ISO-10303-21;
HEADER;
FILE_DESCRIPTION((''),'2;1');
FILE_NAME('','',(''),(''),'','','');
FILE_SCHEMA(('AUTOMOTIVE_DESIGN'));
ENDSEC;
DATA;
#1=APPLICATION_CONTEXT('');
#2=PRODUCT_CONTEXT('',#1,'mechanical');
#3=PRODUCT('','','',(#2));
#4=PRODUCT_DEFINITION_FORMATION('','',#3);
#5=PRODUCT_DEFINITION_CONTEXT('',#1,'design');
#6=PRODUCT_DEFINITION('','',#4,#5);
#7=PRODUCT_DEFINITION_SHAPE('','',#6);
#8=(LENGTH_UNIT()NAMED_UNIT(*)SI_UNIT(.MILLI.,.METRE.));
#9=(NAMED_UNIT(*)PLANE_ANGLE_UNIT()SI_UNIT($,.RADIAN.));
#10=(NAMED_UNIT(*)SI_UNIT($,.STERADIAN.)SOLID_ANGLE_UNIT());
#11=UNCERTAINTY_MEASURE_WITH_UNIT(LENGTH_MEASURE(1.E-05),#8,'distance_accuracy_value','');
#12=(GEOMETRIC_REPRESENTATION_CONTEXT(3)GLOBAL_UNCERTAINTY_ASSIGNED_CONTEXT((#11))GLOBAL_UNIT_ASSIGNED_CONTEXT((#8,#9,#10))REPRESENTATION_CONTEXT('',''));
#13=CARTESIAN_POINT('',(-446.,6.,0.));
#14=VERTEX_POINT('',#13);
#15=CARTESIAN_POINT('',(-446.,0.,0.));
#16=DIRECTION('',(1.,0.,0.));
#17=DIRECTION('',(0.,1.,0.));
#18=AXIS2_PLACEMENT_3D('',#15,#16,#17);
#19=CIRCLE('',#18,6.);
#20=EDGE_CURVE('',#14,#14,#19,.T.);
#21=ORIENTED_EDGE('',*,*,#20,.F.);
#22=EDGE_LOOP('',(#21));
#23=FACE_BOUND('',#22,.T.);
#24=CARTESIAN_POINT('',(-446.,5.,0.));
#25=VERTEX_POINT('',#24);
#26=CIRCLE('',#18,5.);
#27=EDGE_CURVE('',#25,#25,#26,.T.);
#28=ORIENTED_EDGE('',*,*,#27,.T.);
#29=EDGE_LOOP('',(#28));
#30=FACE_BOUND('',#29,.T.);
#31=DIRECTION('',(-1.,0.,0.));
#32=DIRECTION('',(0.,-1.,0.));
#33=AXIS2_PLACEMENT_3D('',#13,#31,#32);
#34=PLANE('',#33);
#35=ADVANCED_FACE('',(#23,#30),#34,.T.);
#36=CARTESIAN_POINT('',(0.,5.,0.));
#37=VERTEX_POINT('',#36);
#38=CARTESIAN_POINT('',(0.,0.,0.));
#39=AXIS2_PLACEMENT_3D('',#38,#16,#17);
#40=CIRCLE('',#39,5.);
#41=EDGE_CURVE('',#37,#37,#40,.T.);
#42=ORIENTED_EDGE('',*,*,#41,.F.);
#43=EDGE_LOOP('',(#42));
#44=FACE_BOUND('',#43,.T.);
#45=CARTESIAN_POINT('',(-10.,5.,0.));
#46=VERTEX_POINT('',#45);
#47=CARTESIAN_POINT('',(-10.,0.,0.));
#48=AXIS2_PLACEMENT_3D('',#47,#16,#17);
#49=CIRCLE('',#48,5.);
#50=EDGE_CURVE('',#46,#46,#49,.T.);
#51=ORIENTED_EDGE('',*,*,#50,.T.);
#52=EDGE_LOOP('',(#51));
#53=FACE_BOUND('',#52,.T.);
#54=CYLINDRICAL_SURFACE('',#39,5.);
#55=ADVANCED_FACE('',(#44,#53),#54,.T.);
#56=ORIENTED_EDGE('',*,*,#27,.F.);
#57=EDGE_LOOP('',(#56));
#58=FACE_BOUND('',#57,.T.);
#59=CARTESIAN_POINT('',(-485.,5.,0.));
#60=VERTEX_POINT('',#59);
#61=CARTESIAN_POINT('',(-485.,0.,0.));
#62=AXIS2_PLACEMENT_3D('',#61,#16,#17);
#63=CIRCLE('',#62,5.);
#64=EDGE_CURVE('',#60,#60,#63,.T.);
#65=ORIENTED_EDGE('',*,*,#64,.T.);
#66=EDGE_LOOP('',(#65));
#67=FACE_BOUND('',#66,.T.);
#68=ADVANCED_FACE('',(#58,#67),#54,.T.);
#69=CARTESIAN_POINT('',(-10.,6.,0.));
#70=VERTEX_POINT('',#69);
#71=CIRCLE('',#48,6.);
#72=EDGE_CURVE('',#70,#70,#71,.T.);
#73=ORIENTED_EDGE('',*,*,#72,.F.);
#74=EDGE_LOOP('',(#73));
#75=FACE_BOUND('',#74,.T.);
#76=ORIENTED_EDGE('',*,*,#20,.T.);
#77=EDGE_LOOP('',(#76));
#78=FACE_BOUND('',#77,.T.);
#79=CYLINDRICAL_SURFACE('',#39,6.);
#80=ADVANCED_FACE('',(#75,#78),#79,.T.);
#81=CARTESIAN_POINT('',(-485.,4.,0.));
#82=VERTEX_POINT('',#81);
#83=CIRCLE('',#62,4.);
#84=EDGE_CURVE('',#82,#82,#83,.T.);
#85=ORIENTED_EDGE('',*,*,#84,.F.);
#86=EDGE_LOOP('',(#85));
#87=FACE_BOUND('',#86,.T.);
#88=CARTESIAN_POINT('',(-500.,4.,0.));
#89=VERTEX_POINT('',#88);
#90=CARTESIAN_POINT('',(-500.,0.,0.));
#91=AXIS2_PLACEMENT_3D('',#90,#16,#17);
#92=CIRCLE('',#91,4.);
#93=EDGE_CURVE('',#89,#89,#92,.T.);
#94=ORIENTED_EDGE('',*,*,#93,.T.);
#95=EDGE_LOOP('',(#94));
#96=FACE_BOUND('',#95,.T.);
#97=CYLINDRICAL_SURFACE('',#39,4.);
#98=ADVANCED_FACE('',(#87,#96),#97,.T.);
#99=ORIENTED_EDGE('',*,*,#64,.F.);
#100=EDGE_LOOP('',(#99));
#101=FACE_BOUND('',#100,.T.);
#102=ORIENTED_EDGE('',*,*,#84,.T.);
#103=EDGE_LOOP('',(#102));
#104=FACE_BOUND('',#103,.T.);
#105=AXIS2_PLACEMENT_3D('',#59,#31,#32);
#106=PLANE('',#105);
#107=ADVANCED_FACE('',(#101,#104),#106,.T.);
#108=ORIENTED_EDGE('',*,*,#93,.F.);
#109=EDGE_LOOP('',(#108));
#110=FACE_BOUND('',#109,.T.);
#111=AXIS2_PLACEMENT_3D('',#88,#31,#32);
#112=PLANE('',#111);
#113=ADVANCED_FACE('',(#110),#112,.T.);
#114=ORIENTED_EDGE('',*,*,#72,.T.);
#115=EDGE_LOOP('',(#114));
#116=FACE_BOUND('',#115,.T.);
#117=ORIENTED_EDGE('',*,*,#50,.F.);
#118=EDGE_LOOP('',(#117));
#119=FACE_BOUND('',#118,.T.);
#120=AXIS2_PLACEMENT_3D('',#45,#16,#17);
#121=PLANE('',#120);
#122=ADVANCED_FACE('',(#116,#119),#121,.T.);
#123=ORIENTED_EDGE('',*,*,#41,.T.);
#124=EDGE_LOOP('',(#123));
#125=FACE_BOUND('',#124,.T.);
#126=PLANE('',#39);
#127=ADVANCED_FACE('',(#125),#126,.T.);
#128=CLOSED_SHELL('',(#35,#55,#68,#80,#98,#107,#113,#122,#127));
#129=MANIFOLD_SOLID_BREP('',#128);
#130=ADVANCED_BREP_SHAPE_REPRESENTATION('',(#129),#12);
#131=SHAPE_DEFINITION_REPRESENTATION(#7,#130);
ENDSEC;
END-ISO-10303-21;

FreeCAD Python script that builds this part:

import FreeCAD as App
import Part
import Sketcher


def add_polygon(sketch, points):
    """Adds a closed chain of lines whose ends are joined by coincident constraints."""
    first, n = sketch.GeometryCount, len(points)
    for a, b in zip(points, points[1:] + points[:1]):
        sketch.addGeometry(Part.LineSegment(App.Vector(*a, 0), App.Vector(*b, 0)), False)
    for i in range(n):
        sketch.addConstraint(Sketcher.Constraint("Coincident", first + i, 2, first + (i + 1) % n, 1))

doc = App.newDocument("Part")
body = doc.addObject("PartDesign::Body", "Body")

# Sketch on XY plane
sketch1 = body.newObject("Sketcher::SketchObject", "Sketch")
sketch1.AttachmentSupport = (doc.getObject("XY_Plane"), [""])
sketch1.MapMode = "FlatFace"
add_polygon(sketch1, [(0, 0), (0, 5), (-10, 5), (-10, 6), (-446, 6), (-446, 5), (-485, 5), (-485, 4), (-500, 4), (-500, 0)])  # lines 0-9
sketch1.addConstraint([
    Sketcher.Constraint("Vertical", 0),
    Sketcher.Constraint("Horizontal", 1),
    Sketcher.Constraint("Vertical", 2),
    Sketcher.Constraint("Horizontal", 3),
    Sketcher.Constraint("Vertical", 4),
    Sketcher.Constraint("Horizontal", 5),
    Sketcher.Constraint("Vertical", 6),
    Sketcher.Constraint("Horizontal", 7),
    Sketcher.Constraint("Vertical", 8),
    Sketcher.Constraint("Horizontal", 9),
    Sketcher.Constraint("Coincident", 9, 2, -1, 1),
    Sketcher.Constraint("Horizontal", 1, 2, 4, 2),
    Sketcher.Constraint("Equal", 4, 6),
    Sketcher.Constraint("DistanceX", 1, 2, 1, 1, 10.0),
    Sketcher.Constraint("DistanceX", 3, 2, 3, 1, 436.0),
    Sketcher.Constraint("DistanceX", 5, 2, 5, 1, 39.0),
    Sketcher.Constraint("DistanceX", 7, 2, 7, 1, 15.0),
    Sketcher.Constraint("DistanceY", 0, 1, 0, 2, 5.0),
    Sketcher.Constraint("DistanceY", 2, 1, 2, 2, 1.0),
])
revolution = body.newObject("PartDesign::Revolution", "Revolution")
revolution.Profile = sketch1
revolution.ReferenceAxis = (sketch1, ["H_Axis"])
revolution.Angle = 360

doc.recompute()
